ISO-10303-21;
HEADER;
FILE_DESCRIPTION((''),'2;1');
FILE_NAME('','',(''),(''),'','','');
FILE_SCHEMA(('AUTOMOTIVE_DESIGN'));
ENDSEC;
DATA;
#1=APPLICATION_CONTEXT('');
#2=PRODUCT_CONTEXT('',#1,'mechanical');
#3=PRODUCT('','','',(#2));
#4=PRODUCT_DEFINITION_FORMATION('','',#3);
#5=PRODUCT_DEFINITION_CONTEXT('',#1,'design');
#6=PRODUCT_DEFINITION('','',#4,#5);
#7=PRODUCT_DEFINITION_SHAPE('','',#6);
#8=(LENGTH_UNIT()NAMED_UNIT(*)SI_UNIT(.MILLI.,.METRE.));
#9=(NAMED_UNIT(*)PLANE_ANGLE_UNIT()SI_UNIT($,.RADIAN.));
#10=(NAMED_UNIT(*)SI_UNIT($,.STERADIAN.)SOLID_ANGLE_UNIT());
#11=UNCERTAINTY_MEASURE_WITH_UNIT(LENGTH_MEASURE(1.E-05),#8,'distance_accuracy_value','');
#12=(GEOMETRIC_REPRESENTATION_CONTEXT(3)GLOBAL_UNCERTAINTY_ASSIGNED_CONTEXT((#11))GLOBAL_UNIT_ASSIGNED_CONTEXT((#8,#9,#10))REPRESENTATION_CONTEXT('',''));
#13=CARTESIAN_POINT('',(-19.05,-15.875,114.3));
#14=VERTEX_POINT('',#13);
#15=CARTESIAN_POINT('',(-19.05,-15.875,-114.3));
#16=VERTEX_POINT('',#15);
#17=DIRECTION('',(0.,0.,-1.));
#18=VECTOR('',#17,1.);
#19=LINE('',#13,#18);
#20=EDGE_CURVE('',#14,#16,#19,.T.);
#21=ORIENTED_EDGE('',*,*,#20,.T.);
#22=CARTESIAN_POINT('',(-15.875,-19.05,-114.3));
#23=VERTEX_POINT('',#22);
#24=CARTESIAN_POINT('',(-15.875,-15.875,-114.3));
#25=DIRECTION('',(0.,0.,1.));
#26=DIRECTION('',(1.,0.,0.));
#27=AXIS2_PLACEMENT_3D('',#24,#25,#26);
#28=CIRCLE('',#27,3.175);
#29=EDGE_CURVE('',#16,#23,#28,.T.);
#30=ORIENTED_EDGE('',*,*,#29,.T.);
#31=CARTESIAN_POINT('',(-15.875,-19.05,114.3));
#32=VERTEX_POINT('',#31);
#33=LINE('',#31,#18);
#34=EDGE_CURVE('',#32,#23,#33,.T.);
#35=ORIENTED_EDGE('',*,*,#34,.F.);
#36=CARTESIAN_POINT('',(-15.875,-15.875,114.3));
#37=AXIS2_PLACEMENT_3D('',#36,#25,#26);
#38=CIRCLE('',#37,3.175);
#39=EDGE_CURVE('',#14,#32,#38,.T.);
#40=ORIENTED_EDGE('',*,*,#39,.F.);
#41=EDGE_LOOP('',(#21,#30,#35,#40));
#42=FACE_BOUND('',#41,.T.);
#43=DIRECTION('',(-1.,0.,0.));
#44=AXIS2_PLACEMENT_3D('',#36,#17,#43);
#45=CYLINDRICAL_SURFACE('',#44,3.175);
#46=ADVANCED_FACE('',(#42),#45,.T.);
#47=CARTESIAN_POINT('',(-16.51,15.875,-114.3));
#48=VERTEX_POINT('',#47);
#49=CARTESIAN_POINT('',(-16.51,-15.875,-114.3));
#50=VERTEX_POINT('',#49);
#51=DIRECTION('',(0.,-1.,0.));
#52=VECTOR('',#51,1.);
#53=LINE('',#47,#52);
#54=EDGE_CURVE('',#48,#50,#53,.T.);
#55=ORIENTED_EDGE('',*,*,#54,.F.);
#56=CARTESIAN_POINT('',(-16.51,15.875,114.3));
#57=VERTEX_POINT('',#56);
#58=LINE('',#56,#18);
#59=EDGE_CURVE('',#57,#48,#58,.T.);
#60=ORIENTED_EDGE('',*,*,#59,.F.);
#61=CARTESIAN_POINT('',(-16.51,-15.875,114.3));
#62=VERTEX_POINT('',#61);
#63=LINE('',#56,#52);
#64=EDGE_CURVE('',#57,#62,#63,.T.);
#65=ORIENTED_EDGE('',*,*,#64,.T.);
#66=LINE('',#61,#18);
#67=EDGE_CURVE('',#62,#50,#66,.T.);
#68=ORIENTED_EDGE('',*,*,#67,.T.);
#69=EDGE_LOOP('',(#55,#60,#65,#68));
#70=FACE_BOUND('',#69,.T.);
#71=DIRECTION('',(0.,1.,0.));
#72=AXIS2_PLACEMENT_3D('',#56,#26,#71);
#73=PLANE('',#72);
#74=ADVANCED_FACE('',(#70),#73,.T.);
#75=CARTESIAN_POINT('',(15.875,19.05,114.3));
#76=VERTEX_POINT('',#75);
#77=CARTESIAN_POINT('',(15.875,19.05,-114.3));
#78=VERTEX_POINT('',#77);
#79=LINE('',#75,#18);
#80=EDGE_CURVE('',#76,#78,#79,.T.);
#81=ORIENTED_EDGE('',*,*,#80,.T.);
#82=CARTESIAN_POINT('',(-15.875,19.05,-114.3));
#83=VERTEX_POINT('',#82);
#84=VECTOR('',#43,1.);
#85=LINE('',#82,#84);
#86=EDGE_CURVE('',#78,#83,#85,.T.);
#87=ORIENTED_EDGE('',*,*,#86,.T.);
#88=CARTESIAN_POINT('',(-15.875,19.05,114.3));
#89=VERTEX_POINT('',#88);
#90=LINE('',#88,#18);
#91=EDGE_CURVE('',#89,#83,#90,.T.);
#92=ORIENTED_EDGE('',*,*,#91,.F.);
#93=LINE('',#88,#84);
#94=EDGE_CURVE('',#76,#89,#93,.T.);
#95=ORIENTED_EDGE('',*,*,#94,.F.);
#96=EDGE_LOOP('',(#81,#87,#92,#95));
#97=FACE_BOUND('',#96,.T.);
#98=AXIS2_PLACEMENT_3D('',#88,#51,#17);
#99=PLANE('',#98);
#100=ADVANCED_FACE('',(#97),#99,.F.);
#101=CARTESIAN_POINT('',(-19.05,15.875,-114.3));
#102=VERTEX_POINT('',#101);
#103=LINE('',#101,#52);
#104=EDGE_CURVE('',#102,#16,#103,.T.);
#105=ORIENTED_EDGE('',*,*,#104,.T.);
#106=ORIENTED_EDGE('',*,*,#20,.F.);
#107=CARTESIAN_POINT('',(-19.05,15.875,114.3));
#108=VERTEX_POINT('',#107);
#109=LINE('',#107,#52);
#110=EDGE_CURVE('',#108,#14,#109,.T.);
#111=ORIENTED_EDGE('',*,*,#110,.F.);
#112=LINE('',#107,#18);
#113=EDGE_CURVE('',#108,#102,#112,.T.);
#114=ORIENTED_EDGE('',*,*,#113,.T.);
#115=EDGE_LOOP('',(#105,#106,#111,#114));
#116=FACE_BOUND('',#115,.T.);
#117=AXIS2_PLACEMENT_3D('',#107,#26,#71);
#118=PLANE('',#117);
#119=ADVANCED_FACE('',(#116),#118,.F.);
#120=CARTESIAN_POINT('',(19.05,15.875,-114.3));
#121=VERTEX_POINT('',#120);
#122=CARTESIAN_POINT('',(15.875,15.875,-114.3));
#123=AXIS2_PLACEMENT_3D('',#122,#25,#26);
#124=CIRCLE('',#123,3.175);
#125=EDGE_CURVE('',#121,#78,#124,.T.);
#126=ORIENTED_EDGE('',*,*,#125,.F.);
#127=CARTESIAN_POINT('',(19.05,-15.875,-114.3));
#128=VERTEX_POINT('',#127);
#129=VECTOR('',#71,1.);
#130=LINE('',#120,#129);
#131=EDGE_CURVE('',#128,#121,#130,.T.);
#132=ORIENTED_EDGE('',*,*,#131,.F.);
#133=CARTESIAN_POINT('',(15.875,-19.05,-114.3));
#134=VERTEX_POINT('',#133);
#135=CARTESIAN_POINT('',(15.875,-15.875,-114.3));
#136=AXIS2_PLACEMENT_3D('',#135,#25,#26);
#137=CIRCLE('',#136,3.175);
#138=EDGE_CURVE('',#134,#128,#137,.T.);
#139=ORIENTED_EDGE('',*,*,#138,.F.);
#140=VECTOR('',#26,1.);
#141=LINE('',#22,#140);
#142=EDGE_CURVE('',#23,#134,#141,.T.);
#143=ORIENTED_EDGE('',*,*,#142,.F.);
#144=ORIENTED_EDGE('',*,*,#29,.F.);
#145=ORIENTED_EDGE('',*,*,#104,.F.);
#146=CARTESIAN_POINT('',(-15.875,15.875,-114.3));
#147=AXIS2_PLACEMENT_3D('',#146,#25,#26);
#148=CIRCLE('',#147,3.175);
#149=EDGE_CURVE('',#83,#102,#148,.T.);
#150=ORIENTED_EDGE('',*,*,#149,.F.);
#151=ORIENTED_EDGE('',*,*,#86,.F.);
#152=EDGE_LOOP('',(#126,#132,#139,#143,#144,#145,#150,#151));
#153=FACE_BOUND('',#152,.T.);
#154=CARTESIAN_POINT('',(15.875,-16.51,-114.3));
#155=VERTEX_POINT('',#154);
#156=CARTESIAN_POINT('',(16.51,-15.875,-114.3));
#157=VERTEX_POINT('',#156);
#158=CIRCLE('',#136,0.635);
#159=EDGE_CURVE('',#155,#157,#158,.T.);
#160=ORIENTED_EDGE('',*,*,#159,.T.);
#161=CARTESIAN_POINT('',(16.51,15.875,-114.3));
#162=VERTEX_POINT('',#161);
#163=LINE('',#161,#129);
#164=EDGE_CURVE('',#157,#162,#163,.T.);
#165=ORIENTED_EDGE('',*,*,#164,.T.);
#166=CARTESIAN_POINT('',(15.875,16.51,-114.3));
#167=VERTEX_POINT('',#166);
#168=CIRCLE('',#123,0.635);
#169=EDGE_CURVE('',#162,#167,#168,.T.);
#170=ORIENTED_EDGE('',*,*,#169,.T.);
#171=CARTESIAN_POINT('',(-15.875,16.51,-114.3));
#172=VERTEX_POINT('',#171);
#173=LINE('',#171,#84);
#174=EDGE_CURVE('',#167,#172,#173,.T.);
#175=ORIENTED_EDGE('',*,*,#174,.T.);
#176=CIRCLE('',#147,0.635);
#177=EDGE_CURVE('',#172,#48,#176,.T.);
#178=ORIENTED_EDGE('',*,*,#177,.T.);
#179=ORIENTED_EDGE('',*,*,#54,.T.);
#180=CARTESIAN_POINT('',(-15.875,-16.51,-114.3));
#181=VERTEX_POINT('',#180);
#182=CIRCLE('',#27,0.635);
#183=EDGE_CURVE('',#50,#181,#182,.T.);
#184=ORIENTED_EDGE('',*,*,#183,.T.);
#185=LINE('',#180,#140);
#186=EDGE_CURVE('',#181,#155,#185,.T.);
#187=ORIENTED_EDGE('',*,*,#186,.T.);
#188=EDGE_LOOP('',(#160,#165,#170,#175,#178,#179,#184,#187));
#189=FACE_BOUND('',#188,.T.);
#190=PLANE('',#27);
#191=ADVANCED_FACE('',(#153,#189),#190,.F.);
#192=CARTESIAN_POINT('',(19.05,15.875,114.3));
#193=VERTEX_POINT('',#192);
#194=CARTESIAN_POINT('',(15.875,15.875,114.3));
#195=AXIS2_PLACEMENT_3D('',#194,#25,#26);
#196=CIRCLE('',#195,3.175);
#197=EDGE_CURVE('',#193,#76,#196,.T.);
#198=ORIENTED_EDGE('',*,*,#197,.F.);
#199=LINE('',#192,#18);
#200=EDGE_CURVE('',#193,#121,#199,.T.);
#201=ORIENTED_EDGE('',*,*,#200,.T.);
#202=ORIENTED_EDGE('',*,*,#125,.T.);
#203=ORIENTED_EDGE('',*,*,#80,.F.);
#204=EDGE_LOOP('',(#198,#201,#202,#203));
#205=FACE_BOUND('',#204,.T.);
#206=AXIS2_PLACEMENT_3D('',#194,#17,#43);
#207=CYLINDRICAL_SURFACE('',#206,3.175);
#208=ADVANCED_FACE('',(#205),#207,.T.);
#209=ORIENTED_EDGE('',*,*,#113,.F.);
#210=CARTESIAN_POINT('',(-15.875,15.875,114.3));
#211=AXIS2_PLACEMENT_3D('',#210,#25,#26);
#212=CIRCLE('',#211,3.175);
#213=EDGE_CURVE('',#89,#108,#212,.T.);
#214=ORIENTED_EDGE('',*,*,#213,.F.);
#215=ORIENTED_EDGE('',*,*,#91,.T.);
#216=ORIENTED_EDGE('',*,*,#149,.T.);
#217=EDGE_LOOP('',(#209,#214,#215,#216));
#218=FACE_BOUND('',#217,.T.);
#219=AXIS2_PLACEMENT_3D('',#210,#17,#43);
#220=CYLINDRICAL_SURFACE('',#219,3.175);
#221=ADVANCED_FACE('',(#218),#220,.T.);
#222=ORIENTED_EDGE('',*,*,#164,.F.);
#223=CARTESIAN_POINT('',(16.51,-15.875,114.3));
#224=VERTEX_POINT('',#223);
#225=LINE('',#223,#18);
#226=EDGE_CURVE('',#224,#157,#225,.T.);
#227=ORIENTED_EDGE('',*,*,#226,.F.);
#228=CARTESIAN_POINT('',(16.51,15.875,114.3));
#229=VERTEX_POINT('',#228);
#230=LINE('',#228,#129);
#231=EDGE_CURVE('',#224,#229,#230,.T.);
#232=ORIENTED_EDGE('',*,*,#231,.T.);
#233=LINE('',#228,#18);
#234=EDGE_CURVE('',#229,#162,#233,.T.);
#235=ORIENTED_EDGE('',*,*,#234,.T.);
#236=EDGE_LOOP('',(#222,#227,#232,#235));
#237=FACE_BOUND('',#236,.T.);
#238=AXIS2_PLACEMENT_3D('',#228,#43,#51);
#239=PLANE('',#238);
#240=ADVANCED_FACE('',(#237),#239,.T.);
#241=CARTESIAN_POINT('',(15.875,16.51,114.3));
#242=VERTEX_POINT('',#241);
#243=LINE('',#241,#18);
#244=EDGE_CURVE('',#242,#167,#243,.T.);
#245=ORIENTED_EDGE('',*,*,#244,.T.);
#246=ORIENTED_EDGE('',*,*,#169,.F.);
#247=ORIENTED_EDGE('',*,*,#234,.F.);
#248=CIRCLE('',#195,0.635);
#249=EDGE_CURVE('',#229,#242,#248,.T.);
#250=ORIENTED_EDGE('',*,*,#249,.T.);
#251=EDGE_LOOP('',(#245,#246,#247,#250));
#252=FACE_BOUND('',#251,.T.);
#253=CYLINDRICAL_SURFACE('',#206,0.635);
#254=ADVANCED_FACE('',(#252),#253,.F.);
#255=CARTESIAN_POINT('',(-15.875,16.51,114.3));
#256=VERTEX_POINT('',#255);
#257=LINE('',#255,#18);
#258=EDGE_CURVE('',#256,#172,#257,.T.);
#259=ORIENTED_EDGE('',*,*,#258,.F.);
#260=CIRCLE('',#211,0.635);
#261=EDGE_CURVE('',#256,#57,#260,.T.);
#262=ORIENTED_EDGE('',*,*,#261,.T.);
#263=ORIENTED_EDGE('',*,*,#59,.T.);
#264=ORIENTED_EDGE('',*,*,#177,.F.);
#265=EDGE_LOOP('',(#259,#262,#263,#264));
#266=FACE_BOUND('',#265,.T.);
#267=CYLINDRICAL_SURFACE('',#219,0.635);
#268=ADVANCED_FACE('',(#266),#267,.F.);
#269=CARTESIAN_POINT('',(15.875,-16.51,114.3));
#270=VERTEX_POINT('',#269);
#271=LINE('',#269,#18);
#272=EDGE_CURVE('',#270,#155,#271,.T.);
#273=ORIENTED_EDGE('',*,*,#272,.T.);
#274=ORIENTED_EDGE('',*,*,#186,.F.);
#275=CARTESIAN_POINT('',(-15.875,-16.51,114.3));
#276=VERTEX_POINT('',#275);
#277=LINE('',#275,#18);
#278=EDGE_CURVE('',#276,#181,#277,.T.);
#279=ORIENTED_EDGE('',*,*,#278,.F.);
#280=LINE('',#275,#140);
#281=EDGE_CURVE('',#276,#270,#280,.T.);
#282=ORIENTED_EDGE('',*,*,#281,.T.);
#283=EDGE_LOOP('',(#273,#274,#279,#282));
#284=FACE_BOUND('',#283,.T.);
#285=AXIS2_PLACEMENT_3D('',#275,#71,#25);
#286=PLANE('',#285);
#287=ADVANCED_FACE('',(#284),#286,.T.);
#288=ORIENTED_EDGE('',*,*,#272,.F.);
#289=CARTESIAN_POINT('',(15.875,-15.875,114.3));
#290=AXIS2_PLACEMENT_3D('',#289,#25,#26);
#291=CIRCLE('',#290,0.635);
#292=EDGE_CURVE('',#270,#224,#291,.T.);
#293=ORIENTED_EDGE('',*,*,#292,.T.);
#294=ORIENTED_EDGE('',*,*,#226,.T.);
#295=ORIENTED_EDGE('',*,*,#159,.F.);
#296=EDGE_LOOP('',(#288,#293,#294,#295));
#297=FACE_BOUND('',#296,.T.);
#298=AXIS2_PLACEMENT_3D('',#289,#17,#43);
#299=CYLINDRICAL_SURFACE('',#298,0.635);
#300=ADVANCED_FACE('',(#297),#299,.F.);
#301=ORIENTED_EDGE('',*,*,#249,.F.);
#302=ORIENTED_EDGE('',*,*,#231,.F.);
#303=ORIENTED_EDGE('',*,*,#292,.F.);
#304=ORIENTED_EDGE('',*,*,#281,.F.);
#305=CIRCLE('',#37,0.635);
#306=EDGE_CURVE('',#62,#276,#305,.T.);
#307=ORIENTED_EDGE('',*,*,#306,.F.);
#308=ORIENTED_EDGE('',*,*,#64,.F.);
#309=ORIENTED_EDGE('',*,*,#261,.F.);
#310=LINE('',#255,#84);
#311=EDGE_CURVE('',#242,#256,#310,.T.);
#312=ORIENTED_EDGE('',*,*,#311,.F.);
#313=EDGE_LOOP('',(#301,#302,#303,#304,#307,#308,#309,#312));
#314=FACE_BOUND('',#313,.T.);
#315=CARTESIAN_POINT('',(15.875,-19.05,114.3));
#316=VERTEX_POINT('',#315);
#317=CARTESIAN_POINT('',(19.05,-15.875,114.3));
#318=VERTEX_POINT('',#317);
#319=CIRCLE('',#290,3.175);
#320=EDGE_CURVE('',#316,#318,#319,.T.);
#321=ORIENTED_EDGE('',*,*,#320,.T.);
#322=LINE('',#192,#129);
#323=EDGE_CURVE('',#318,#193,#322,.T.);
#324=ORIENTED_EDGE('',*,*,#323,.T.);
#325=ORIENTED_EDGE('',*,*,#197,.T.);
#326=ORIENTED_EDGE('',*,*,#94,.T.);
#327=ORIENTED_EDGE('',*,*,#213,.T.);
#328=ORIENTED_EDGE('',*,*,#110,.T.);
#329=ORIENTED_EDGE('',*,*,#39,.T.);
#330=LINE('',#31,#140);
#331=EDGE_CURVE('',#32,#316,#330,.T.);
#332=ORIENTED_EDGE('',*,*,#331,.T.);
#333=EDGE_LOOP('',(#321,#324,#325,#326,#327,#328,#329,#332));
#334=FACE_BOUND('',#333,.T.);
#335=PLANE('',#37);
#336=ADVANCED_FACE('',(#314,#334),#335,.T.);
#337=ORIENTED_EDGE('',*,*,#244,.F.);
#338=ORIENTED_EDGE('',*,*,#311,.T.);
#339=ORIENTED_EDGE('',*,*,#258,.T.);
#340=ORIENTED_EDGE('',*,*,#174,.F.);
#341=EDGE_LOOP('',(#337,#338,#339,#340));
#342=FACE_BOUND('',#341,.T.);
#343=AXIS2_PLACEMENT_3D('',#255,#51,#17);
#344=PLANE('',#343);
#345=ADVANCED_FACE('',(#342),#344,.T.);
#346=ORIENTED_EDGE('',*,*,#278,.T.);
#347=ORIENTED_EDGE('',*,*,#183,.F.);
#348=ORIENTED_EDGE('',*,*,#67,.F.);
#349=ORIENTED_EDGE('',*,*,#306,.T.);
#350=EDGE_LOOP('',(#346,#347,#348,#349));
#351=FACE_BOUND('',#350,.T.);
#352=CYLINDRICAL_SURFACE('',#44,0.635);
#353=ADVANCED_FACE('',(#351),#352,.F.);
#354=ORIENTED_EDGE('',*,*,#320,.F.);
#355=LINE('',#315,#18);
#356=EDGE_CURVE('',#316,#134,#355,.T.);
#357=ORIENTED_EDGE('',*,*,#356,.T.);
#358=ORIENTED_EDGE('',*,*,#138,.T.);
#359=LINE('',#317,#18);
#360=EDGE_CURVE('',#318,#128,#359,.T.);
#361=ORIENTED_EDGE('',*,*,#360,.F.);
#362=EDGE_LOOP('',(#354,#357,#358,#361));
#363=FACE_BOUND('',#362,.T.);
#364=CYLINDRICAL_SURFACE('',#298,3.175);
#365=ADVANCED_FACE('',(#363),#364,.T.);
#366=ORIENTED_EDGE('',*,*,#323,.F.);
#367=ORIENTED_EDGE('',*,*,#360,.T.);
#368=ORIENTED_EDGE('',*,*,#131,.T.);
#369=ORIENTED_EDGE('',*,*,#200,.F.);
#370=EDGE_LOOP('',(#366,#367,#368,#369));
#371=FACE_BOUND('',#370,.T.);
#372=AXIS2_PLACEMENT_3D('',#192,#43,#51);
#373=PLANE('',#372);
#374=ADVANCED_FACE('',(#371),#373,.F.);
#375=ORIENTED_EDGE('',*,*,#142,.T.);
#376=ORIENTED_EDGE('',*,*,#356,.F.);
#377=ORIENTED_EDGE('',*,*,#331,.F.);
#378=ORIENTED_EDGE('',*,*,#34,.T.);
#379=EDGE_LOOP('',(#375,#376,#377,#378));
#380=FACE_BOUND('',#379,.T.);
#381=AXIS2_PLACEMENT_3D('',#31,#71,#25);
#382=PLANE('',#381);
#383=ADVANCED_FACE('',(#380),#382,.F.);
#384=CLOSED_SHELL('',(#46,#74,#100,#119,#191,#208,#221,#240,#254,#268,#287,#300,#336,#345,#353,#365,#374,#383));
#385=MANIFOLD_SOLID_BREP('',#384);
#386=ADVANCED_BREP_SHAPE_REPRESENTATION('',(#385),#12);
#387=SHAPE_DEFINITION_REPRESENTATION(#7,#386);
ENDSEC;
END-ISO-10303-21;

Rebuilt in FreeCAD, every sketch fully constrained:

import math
import FreeCAD as App
import Part
import Sketcher
from FreeCAD import Vector
Q = App.Units.Quantity

doc = App.newDocument("Part")
body = doc.addObject("PartDesign::Body", "Body")

# Sketch on XY plane
sketch1 = doc.addObject("Sketcher::SketchObject", "Sketch")
body.addObject(sketch1)
sketch1.AttachmentSupport = (doc.XY_Plane, [""])
sketch1.MapMode = "FlatFace"
sketch1.addGeometry([
    Part.LineSegment(Vector(15.875, 19.05, 0), Vector(-15.875, 19.05, 0)),  # 0
    Part.ArcOfCircle(Part.Circle(Vector(-15.875, 15.875, 0), Vector(0, 0, 1), 3.175), math.radians(90), math.radians(180)),  # 1
    Part.LineSegment(Vector(-19.05, 15.875, 0), Vector(-19.05, -15.875, 0)),  # 2
    Part.ArcOfCircle(Part.Circle(Vector(-15.875, -15.875, 0), Vector(0, 0, 1), 3.175), math.radians(-180), math.radians(-90)),  # 3
    Part.LineSegment(Vector(-15.875, -19.05, 0), Vector(15.875, -19.05, 0)),  # 4
    Part.ArcOfCircle(Part.Circle(Vector(15.875, -15.875, 0), Vector(0, 0, 1), 3.175), math.radians(-90), math.radians(0)),  # 5
    Part.LineSegment(Vector(19.05, -15.875, 0), Vector(19.05, 15.875, 0)),  # 6
    Part.ArcOfCircle(Part.Circle(Vector(15.875, 15.875, 0), Vector(0, 0, 1), 3.175), math.radians(0), math.radians(90)),  # 7
    Part.LineSegment(Vector(-15.875, 16.51, 0), Vector(15.875, 16.51, 0)),  # 8
    Part.ArcOfCircle(Part.Circle(Vector(15.875, 15.875, 0), Vector(0, 0, 1), 0.635), math.radians(0), math.radians(90)),  # 9
    Part.LineSegment(Vector(16.51, 15.875, 0), Vector(16.51, -15.875, 0)),  # 10
    Part.ArcOfCircle(Part.Circle(Vector(15.875, -15.875, 0), Vector(0, 0, 1), 0.635), math.radians(-90), math.radians(0)),  # 11
    Part.LineSegment(Vector(15.875, -16.51, 0), Vector(-15.875, -16.51, 0)),  # 12
    Part.ArcOfCircle(Part.Circle(Vector(-15.875, -15.875, 0), Vector(0, 0, 1), 0.635), math.radians(180), math.radians(270)),  # 13
    Part.LineSegment(Vector(-16.51, -15.875, 0), Vector(-16.51, 15.875, 0)),  # 14
    Part.ArcOfCircle(Part.Circle(Vector(-15.875, 15.875, 0), Vector(0, 0, 1), 0.635), math.radians(90), math.radians(180)),  # 15
], False)
sketch1.addConstraint([
    Sketcher.Constraint("Tangent", 0, 2, 1, 1),
    Sketcher.Constraint("Tangent", 1, 2, 2, 1),
    Sketcher.Constraint("Tangent", 2, 2, 3, 1),
    Sketcher.Constraint("Tangent", 3, 2, 4, 1),
    Sketcher.Constraint("Tangent", 4, 2, 5, 1),
    Sketcher.Constraint("Tangent", 5, 2, 6, 1),
    Sketcher.Constraint("Tangent", 6, 2, 7, 1),
    Sketcher.Constraint("Tangent", 7, 2, 0, 1),
    Sketcher.Constraint("Tangent", 8, 2, 9, 2),
    Sketcher.Constraint("Tangent", 9, 1, 10, 1),
    Sketcher.Constraint("Tangent", 10, 2, 11, 2),
    Sketcher.Constraint("Tangent", 11, 1, 12, 1),
    Sketcher.Constraint("Tangent", 12, 2, 13, 2),
    Sketcher.Constraint("Tangent", 13, 1, 14, 1),
    Sketcher.Constraint("Tangent", 14, 2, 15, 2),
    Sketcher.Constraint("Tangent", 15, 1, 8, 1),
    Sketcher.Constraint("Horizontal", 0),
    Sketcher.Constraint("Vertical", 2),
    Sketcher.Constraint("Horizontal", 4),
    Sketcher.Constraint("Vertical", 6),
    Sketcher.Constraint("Horizontal", 8),
    Sketcher.Constraint("Vertical", 10),
    Sketcher.Constraint("Horizontal", 12),
    Sketcher.Constraint("Vertical", 14),
    Sketcher.Constraint("Coincident", 9, 3, 7, 3),
    Sketcher.Constraint("Coincident", 11, 3, 5, 3),
    Sketcher.Constraint("Coincident", 13, 3, 3, 3),
    Sketcher.Constraint("Equal", 1, 3),
    Sketcher.Constraint("Equal", 3, 5),
    Sketcher.Constraint("Equal", 5, 7),
    Sketcher.Constraint("Equal", 13, 15),
    Sketcher.Constraint("Symmetric", 1, 3, 5, 3, -1, 1),
    Sketcher.Constraint("Equal", 12, 2),
    Sketcher.Constraint("Radius", 1, Q("0.125 in")),
    Sketcher.Constraint("Radius", 9, Q("0.025 in")),
    Sketcher.Constraint("DistanceX", 0, 2, 0, 1, Q("1.25 in")),
])
pad1 = doc.addObject("PartDesign::Pad", "Pad")
body.addObject(pad1)
pad1.Profile = sketch1
pad1.Length = Q("9 in")
pad1.Midplane = True

doc.recompute()
